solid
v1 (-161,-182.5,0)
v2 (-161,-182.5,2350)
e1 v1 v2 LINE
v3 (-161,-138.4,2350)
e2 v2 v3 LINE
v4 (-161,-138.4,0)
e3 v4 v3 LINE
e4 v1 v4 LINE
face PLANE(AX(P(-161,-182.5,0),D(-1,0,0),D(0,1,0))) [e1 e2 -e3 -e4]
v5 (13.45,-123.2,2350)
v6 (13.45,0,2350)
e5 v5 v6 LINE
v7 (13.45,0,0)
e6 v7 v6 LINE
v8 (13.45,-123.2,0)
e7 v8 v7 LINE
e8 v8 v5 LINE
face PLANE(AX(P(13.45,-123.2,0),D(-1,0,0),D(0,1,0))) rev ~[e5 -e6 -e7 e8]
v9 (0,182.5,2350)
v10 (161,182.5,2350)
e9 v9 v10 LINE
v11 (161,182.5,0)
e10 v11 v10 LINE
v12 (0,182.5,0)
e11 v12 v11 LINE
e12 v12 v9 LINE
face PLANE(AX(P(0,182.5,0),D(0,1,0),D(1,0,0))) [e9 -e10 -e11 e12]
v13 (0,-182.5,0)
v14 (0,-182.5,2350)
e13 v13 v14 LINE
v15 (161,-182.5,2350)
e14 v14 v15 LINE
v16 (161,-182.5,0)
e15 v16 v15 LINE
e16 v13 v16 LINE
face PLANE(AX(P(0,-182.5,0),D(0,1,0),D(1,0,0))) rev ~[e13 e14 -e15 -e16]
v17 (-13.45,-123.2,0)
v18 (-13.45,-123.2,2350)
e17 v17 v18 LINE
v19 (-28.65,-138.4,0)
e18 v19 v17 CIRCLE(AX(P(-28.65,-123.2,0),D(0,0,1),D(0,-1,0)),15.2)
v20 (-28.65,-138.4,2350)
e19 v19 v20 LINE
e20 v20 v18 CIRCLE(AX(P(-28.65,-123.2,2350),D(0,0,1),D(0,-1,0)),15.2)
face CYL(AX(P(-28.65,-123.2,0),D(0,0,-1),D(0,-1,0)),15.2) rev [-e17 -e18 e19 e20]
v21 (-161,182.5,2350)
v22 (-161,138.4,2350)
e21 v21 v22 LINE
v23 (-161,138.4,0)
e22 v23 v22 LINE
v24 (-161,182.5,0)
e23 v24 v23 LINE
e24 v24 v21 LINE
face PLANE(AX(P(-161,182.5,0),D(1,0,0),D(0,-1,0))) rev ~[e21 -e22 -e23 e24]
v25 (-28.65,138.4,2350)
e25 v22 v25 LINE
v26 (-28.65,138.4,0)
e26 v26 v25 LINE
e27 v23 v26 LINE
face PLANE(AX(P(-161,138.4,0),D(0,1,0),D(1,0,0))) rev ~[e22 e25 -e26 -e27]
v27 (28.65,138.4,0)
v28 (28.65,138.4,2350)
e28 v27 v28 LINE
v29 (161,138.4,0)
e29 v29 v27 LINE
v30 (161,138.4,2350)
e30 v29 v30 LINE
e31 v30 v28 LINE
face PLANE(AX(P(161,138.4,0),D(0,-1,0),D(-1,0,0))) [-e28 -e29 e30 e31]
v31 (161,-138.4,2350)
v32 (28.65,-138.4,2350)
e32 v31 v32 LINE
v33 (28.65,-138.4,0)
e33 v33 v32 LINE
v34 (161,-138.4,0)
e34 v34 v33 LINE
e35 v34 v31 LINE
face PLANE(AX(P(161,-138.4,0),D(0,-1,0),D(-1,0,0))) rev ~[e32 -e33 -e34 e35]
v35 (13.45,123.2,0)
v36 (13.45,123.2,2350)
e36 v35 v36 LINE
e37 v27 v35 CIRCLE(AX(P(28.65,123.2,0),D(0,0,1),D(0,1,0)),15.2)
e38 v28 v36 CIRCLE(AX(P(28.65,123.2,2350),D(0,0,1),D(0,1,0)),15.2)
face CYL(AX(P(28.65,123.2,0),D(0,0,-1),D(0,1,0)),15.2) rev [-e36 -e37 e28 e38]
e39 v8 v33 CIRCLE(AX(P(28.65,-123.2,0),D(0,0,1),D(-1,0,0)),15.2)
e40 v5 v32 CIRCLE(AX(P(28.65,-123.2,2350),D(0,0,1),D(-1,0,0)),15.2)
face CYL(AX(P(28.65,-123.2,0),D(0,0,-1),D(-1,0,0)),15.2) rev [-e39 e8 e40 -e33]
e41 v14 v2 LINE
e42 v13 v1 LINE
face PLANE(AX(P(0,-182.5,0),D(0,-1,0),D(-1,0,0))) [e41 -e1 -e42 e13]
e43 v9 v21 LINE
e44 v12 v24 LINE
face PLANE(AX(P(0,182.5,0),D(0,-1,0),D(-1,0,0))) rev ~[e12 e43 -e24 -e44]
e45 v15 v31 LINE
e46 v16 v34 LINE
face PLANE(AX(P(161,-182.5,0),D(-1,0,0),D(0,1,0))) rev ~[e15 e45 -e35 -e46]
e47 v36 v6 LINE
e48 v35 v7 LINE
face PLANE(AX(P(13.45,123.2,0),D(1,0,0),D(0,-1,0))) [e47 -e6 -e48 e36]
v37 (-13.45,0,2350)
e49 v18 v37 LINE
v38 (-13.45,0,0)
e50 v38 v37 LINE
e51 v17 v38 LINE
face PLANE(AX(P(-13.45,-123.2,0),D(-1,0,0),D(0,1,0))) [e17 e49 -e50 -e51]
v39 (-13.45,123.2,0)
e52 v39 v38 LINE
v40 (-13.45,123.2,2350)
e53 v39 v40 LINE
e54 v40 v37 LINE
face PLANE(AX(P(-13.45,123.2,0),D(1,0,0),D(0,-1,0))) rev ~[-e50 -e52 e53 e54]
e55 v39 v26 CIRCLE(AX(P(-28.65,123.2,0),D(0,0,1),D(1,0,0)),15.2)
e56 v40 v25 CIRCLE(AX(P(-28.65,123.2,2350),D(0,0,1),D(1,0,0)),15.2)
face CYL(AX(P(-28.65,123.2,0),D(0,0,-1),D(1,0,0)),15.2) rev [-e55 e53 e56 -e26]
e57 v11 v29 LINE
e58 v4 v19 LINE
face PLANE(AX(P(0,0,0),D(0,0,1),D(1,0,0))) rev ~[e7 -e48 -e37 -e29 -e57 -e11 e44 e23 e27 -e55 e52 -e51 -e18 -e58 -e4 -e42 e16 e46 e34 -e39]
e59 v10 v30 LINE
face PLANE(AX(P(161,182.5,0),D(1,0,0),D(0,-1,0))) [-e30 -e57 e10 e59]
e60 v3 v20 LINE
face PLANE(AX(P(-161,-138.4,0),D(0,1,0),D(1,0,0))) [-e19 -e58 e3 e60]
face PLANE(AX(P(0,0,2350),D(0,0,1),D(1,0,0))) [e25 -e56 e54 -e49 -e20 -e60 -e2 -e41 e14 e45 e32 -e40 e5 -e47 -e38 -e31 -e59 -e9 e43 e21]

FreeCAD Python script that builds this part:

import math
import FreeCAD as App
import Part
import Sketcher

doc = App.newDocument("Part")
body = doc.addObject("PartDesign::Body", "Body")

# Sketch on XY plane
sketch1 = body.newObject("Sketcher::SketchObject", "Sketch")
sketch1.AttachmentSupport = (doc.getObject("XY_Plane"), [""])
sketch1.MapMode = "FlatFace"
sketch1.addGeometry([
    Part.LineSegment(App.Vector(-161, -138.4, 0), App.Vector(-161, -182.5, 0)),  # 0
    Part.LineSegment(App.Vector(-161, -182.5, 0), App.Vector(161, -182.5, 0)),  # 1
    Part.LineSegment(App.Vector(161, -182.5, 0), App.Vector(161, -138.4, 0)),  # 2
    Part.LineSegment(App.Vector(161, -138.4, 0), App.Vector(28.65, -138.4, 0)),  # 3
    Part.ArcOfCircle(Part.Circle(App.Vector(28.65, -123.2, 0), App.Vector(0, 0, 1), 15.2), math.radians(180), math.radians(270)),  # 4
    Part.LineSegment(App.Vector(13.45, -123.2, 0), App.Vector(13.45, 123.2, 0)),  # 5
    Part.ArcOfCircle(Part.Circle(App.Vector(28.65, 123.2, 0), App.Vector(0, 0, 1), 15.2), math.radians(90), math.radians(180)),  # 6
    Part.LineSegment(App.Vector(28.65, 138.4, 0), App.Vector(161, 138.4, 0)),  # 7
    Part.LineSegment(App.Vector(161, 138.4, 0), App.Vector(161, 182.5, 0)),  # 8
    Part.LineSegment(App.Vector(161, 182.5, 0), App.Vector(-161, 182.5, 0)),  # 9
    Part.LineSegment(App.Vector(-161, 182.5, 0), App.Vector(-161, 138.4, 0)),  # 10
    Part.LineSegment(App.Vector(-161, 138.4, 0), App.Vector(-28.65, 138.4, 0)),  # 11
    Part.ArcOfCircle(Part.Circle(App.Vector(-28.65, 123.2, 0), App.Vector(0, 0, 1), 15.2), math.radians(0), math.radians(90)),  # 12
    Part.LineSegment(App.Vector(-13.45, 123.2, 0), App.Vector(-13.45, -123.2, 0)),  # 13
    Part.ArcOfCircle(Part.Circle(App.Vector(-28.65, -123.2, 0), App.Vector(0, 0, 1), 15.2), math.radians(-90), math.radians(0)),  # 14
    Part.LineSegment(App.Vector(-28.65, -138.4, 0), App.Vector(-161, -138.4, 0)),  # 15
], False)
sketch1.addConstraint([
    Sketcher.Constraint("Coincident", 0, 2, 1, 1),
    Sketcher.Constraint("Coincident", 1, 2, 2, 1),
    Sketcher.Constraint("Coincident", 2, 2, 3, 1),
    Sketcher.Constraint("Tangent", 3, 2, 4, 2),
    Sketcher.Constraint("Tangent", 4, 1, 5, 1),
    Sketcher.Constraint("Tangent", 5, 2, 6, 2),
    Sketcher.Constraint("Tangent", 6, 1, 7, 1),
    Sketcher.Constraint("Coincident", 7, 2, 8, 1),
    Sketcher.Constraint("Coincident", 8, 2, 9, 1),
    Sketcher.Constraint("Coincident", 9, 2, 10, 1),
    Sketcher.Constraint("Coincident", 10, 2, 11, 1),
    Sketcher.Constraint("Tangent", 11, 2, 12, 2),
    Sketcher.Constraint("Tangent", 12, 1, 13, 1),
    Sketcher.Constraint("Tangent", 13, 2, 14, 2),
    Sketcher.Constraint("Tangent", 14, 1, 15, 1),
    Sketcher.Constraint("Coincident", 15, 2, 0, 1),
    Sketcher.Constraint("Vertical", 0),
    Sketcher.Constraint("Horizontal", 1),
    Sketcher.Constraint("Vertical", 2),
    Sketcher.Constraint("Horizontal", 3),
    Sketcher.Constraint("Vertical", 5),
    Sketcher.Constraint("Horizontal", 7),
    Sketcher.Constraint("Vertical", 8),
    Sketcher.Constraint("Horizontal", 9),
    Sketcher.Constraint("Vertical", 10),
    Sketcher.Constraint("Horizontal", 11),
    Sketcher.Constraint("Vertical", 13),
    Sketcher.Constraint("Horizontal", 15),
    Sketcher.Constraint("Equal", 4, 6),
    Sketcher.Constraint("Equal", 6, 12),
    Sketcher.Constraint("Equal", 12, 14),
    Sketcher.Constraint("Symmetric", 4, 3, 12, 3, -1, 1),
    Sketcher.Constraint("Symmetric", 0, 2, 8, 2, -1, 1),
    Sketcher.Constraint("Symmetric", 7, 2, 10, 2, -2),
    Sketcher.Constraint("Symmetric", 2, 2, 15, 2, -2),
    Sketcher.Constraint("Radius", 4, 15.2),
    Sketcher.Constraint("DistanceY", 0, 2, 0, 1, 44.1),
    Sketcher.Constraint("DistanceX", 0, 2, -1, 1, 161.0),
    Sketcher.Constraint("DistanceY", 0, 2, -1, 1, 182.5),
    Sketcher.Constraint("DistanceX", -1, 1, 4, 1, 13.45),
])
pad1 = body.newObject("PartDesign::Pad", "Pad")
pad1.Profile = sketch1
pad1.Length = 2350

doc.recompute()
